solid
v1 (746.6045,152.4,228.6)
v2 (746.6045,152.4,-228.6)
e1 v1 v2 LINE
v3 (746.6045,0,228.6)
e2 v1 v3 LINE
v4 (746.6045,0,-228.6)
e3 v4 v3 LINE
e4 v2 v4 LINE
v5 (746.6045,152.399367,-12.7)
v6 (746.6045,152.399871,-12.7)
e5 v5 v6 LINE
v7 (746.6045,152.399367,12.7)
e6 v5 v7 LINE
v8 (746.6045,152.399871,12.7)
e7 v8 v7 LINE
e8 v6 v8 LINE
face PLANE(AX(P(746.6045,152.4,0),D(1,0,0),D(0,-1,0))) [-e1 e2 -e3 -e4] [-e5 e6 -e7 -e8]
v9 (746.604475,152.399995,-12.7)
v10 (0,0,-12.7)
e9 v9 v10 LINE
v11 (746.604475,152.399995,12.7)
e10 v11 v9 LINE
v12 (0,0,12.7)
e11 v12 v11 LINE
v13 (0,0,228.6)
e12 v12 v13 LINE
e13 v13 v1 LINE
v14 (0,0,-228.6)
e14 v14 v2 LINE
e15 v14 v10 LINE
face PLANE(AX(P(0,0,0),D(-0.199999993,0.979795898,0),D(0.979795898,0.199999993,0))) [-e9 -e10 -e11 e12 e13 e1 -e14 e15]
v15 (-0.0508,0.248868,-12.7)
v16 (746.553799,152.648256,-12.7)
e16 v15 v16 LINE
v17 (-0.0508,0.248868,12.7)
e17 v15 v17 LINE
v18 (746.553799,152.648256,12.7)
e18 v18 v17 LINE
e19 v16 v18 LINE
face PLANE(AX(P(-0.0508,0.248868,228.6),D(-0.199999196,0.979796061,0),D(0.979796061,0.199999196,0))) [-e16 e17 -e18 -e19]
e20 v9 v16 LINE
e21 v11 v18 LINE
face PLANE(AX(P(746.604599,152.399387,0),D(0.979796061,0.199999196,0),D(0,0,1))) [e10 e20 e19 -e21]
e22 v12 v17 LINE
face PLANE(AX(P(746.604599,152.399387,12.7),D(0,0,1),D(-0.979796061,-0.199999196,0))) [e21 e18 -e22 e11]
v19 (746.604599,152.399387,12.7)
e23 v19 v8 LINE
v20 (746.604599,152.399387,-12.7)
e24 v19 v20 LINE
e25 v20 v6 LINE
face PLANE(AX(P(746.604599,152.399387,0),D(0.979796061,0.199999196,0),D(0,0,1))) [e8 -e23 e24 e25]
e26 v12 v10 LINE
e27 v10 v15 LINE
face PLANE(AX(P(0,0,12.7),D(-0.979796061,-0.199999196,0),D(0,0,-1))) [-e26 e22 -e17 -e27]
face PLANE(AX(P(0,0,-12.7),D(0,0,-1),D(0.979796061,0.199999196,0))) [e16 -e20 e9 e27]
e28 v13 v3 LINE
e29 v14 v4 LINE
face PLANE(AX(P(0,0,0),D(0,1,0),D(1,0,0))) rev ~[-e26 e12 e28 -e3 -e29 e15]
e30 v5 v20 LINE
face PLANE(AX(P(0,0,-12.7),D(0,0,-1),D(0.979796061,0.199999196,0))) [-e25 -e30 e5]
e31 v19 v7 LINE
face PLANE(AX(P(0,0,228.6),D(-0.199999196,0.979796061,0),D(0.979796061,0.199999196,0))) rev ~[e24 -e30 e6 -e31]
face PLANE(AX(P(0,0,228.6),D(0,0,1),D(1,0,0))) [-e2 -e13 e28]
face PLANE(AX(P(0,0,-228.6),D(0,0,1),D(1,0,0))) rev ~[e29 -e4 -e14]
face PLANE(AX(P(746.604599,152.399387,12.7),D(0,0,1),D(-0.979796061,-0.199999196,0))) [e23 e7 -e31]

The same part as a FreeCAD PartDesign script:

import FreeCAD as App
import Part
import Sketcher
from FreeCAD import Vector
Q = App.Units.Quantity

doc = App.newDocument("Part")
body = doc.addObject("PartDesign::Body", "Body")

# Sketch on XY plane
sketch1 = body.newObject("Sketcher::SketchObject", "Sketch")
sketch1.AttachmentSupport = (doc.getObject("XY_Plane"), [""])
sketch1.MapMode = "FlatFace"
sketch1.addGeometry([
    Part.LineSegment(Vector(746.6045, 152.4, 0), Vector(0, 0, 0)),
    Part.LineSegment(Vector(0, 0, 0), Vector(746.6045, 0, 0)),
    Part.LineSegment(Vector(746.6045, 0, 0), Vector(746.6045, 152.4, 0)),
], False)
sketch1.addConstraint([
    Sketcher.Constraint("Coincident", 0, 2, 1, 1),
    Sketcher.Constraint("Coincident", 1, 2, 2, 1),
    Sketcher.Constraint("Coincident", 2, 2, 0, 1),
    Sketcher.Constraint("Horizontal", 1),
    Sketcher.Constraint("Vertical", 2),
    Sketcher.Constraint("Coincident", 0, 2, -1, 1),
    Sketcher.Constraint("DistanceY", 2, 1, 2, 2, Q("6 in")),
    Sketcher.Constraint("Distance", 0, Q("30 in")),
])
pad1 = body.newObject("PartDesign::Pad", "Pad")
pad1.Profile = sketch1
pad1.Length = Q("18 in")
pad1.Midplane = True

# Sketch on an angled plane
sketch2 = body.newObject("Sketcher::SketchObject", "Sketch001")
sketch2.Placement = App.Placement(Vector(0, 0, 228.6), App.Rotation(Vector(0.979796061, 0.199999196, 0), Vector(0, 0, -1), Vector(-0.199999196, 0.979796061, 0), "ZXY"))
sketch2.addGeometry([
    Part.LineSegment(Vector(762, 215.9, 0), Vector(762, 241.3, 0)),
    Part.LineSegment(Vector(762, 241.3, 0), Vector(0, 241.3, 0)),
    Part.LineSegment(Vector(0, 241.3, 0), Vector(0, 215.9, 0)),
    Part.LineSegment(Vector(0, 215.9, 0), Vector(762, 215.9, 0)),
], False)
sketch2.addConstraint([
    Sketcher.Constraint("Coincident", 0, 2, 1, 1),
    Sketcher.Constraint("Coincident", 1, 2, 2, 1),
    Sketcher.Constraint("Coincident", 2, 2, 3, 1),
    Sketcher.Constraint("Coincident", 3, 2, 0, 1),
    Sketcher.Constraint("Vertical", 0),
    Sketcher.Constraint("Horizontal", 1),
    Sketcher.Constraint("Vertical", 2),
    Sketcher.Constraint("Horizontal", 3),
    Sketcher.Constraint("PointOnObject", 1, 2, -2),
    Sketcher.Constraint("DistanceY", 0, 1, 0, 2, Q("1 in")),
    Sketcher.Constraint("DistanceX", 1, 2, 1, 1, Q("30 in")),
    Sketcher.Constraint("DistanceY", -1, 1, 0, 2, Q("9.5 in")),
])
pad2 = body.newObject("PartDesign::Pad", "Pad001")
pad2.Profile = sketch2
pad2.Length = Q("0.01 in")

doc.recompute()
